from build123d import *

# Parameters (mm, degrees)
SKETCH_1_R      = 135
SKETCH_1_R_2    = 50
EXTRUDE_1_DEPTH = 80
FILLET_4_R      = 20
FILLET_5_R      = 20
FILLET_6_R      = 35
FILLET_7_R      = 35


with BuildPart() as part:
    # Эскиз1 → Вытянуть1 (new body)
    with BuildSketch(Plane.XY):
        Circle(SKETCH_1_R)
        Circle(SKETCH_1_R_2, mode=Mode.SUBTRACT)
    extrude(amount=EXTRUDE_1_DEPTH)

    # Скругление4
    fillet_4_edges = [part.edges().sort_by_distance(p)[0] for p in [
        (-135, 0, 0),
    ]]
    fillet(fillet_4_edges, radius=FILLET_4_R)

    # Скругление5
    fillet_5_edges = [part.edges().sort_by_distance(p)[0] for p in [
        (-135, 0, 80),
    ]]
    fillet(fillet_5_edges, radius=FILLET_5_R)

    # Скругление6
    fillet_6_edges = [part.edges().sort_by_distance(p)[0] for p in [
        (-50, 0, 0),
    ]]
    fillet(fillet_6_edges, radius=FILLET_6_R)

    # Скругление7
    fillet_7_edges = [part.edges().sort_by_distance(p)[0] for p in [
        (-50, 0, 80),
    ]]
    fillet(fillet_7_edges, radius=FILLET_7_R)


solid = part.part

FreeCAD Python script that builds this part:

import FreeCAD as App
import Part
import Sketcher

V = App.Vector
Q = App.Units.Quantity


def edges_at(feature, points):
    """Names of the edges that pass closest to the given points."""
    edges = feature.Shape.Edges
    near = lambda p: min(range(len(edges)), key=lambda i: edges[i].distToShape(Part.Vertex(*p))[0])
    return sorted({f"Edge{near(p) + 1}" for p in points})

doc = App.newDocument("Part")
body = doc.addObject("PartDesign::Body", "Body")

# Sketch on XY plane
sketch1 = body.newObject("Sketcher::SketchObject", "Sketch")
sketch1.AttachmentSupport = (doc.getObject("XY_Plane"), [""])
sketch1.MapMode = "FlatFace"
sketch1.addGeometry([
    Part.Circle(V(0, 0, 0), V(0, 0, 1), 135),
    Part.Circle(V(0, 0, 0), V(0, 0, 1), 50),
], False)
sketch1.addConstraint([
    Sketcher.Constraint("Coincident", 0, 3, -1, 1),
    Sketcher.Constraint("Coincident", 1, 3, -1, 1),
    Sketcher.Constraint("Diameter", 0, Q("270 mm")),
    Sketcher.Constraint("Diameter", 1, Q("100 mm")),
])
pad1 = body.newObject("PartDesign::Pad", "Pad")
pad1.Profile = sketch1
pad1.Length = 80
doc.recompute()

fillet = body.newObject("PartDesign::Fillet", "Fillet")
fillet.Base = (pad1, edges_at(pad1, [(-135, 0, 0)]))
fillet.Radius = 20
doc.recompute()

fillet2 = body.newObject("PartDesign::Fillet", "Fillet001")
fillet2.Base = (fillet, edges_at(fillet, [(-135, 0, 80)]))
fillet2.Radius = 20
doc.recompute()

fillet3 = body.newObject("PartDesign::Fillet", "Fillet002")
fillet3.Base = (fillet2, edges_at(fillet2, [(-50, 0, 0)]))
fillet3.Radius = 35
doc.recompute()

fillet4 = body.newObject("PartDesign::Fillet", "Fillet003")
fillet4.Base = (fillet3, edges_at(fillet3, [(-50, 0, 80)]))
fillet4.Radius = 35

doc.recompute()
